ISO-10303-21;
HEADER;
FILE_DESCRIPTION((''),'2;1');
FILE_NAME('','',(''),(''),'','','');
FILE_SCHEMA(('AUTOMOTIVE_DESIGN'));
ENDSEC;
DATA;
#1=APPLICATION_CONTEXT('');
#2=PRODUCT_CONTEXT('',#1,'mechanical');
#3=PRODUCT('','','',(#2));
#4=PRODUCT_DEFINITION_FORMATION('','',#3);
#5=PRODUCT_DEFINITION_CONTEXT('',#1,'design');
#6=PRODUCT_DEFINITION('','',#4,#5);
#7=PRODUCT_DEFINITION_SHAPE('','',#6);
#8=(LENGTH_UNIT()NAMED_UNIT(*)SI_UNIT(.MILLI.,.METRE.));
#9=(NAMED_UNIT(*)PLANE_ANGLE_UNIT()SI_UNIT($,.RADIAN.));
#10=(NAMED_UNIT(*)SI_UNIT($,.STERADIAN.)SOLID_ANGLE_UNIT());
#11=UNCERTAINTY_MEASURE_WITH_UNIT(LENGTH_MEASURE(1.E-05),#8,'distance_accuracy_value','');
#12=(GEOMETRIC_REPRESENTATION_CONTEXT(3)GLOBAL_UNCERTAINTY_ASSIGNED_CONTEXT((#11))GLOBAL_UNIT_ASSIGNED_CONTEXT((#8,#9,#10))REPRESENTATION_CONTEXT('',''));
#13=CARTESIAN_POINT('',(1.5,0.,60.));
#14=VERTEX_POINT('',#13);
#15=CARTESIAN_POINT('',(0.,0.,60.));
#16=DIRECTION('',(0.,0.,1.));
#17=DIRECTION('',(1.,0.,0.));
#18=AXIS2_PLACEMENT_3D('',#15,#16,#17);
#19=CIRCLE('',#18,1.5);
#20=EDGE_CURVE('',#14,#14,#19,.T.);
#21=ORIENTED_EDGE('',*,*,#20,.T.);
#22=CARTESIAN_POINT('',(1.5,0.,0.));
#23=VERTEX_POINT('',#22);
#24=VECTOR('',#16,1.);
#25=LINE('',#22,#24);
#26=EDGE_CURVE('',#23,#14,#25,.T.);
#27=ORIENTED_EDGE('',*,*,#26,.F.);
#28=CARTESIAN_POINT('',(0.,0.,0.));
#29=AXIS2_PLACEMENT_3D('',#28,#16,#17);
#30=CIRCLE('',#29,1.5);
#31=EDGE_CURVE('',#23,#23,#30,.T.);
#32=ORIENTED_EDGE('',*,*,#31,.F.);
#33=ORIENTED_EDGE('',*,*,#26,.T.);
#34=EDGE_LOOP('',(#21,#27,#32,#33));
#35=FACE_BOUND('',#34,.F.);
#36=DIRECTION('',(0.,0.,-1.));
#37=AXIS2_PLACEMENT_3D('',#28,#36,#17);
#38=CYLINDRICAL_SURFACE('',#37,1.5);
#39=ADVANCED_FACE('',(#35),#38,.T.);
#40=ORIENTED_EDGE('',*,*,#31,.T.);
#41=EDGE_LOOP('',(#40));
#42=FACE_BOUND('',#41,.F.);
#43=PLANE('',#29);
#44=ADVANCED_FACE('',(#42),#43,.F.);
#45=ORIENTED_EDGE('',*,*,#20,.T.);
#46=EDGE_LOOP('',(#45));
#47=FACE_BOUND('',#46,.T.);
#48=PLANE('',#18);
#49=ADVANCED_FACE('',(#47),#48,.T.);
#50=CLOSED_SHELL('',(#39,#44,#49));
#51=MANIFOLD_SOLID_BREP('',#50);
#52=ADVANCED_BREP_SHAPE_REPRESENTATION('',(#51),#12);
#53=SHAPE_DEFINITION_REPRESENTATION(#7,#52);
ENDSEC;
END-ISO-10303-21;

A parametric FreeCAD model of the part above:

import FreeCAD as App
import Part
import Sketcher
from FreeCAD import Vector

doc = App.newDocument("Part")
body = doc.addObject("PartDesign::Body", "Body")

# Sketch on XY plane
sketch1 = doc.addObject("Sketcher::SketchObject", "Sketch")
body.addObject(sketch1)
sketch1.AttachmentSupport = (doc.XY_Plane, [""])
sketch1.MapMode = "FlatFace"
sketch1.addGeometry(Part.Circle(Vector(0, 0, 0), Vector(0, 0, 1), 1.5), False)
sketch1.addConstraint(Sketcher.Constraint("Coincident", 0, 3, -1, 1))
sketch1.addConstraint(Sketcher.Constraint("Diameter", 0, 3.0))
pad1 = doc.addObject("PartDesign::Pad", "Pad")
body.addObject(pad1)
pad1.Profile = sketch1
pad1.Length = 60

doc.recompute()
